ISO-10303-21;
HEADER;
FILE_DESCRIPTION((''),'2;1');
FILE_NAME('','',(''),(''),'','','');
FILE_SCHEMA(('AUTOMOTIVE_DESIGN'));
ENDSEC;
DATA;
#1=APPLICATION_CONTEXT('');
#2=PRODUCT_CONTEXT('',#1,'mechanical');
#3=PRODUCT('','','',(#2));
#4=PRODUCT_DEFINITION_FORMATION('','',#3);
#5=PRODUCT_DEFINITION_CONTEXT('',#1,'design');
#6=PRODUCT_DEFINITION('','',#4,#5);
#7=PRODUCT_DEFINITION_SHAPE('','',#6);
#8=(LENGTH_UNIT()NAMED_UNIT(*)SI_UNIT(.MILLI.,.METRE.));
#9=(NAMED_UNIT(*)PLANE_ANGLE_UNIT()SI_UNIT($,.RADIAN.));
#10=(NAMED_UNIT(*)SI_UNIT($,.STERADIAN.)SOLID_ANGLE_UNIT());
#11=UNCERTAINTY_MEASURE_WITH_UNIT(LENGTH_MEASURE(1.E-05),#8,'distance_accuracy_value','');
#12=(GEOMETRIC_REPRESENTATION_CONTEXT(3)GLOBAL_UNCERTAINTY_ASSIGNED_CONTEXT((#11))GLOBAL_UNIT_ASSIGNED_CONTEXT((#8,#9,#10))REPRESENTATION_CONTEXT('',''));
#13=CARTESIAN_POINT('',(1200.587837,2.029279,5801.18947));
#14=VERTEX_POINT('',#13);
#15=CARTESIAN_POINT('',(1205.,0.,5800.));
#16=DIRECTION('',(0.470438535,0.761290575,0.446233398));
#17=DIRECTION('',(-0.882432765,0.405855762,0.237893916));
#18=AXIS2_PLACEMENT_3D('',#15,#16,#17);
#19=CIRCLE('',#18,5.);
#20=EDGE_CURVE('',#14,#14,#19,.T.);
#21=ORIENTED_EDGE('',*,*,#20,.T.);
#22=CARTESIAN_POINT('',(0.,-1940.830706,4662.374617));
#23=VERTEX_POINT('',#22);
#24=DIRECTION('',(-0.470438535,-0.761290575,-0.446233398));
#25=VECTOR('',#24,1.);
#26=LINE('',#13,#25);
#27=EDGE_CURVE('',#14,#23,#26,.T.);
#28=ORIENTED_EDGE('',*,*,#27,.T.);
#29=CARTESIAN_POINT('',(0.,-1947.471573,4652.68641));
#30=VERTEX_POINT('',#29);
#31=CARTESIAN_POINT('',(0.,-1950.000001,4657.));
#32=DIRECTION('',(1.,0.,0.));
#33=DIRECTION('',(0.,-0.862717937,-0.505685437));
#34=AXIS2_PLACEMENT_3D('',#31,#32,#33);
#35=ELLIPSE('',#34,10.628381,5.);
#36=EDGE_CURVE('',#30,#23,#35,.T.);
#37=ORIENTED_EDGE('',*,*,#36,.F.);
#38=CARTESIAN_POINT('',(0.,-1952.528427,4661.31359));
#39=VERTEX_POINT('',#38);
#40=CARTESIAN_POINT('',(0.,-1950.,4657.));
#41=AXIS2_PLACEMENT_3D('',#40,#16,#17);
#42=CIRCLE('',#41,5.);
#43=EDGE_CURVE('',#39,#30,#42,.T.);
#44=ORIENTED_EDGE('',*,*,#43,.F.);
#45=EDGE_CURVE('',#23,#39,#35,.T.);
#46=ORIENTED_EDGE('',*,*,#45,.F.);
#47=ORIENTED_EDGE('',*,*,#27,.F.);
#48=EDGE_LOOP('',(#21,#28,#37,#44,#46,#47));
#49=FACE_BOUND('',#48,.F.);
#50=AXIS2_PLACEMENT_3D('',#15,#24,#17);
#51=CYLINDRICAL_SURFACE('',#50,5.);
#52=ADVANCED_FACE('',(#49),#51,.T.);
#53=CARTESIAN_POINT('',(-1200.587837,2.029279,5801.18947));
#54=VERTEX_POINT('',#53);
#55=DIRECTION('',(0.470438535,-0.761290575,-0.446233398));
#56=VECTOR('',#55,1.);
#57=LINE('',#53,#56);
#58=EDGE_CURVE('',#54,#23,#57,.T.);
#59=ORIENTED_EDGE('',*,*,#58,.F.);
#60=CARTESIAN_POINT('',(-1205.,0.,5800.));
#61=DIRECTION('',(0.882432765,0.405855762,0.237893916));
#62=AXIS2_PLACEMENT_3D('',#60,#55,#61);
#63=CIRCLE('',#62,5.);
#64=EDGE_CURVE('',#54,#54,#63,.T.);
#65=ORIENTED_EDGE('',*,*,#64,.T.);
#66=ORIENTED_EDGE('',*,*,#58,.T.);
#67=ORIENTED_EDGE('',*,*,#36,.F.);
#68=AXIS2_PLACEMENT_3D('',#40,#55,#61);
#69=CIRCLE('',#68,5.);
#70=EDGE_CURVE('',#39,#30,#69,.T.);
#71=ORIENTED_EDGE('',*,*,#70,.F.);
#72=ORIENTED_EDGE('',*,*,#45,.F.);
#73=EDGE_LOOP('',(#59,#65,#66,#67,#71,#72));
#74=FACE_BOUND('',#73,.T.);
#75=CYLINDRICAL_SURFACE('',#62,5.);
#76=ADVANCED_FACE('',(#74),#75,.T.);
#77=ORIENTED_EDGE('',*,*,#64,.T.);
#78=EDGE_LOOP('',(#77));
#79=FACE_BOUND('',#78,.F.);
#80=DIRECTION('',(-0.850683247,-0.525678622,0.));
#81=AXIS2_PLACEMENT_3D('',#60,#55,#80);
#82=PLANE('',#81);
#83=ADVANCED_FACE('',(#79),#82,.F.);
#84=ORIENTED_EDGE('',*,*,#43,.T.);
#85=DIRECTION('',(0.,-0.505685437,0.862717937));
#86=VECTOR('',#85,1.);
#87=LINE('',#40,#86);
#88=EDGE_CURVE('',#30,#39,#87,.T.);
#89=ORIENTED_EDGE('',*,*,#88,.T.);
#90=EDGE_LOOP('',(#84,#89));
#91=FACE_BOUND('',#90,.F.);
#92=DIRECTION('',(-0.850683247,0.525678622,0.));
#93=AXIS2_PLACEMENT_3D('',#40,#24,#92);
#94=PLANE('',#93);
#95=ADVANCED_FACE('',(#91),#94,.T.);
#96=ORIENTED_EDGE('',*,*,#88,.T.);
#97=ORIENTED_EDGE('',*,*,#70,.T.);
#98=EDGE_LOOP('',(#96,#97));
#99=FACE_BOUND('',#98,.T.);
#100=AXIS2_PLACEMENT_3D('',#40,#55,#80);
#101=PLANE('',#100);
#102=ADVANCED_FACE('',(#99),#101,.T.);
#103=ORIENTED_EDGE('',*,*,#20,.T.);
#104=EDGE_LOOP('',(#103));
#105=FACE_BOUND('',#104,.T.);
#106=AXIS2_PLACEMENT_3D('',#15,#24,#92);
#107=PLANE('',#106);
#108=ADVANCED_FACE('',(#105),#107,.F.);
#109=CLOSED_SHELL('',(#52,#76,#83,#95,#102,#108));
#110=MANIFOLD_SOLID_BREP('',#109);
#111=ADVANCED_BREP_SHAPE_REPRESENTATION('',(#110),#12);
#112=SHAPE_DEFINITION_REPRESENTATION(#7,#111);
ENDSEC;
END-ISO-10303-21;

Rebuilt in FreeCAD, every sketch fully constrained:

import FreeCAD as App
import Part
import Sketcher

doc = App.newDocument("Part")
body = doc.addObject("PartDesign::Body", "Body")

sketch1 = body.newObject("Sketcher::SketchObject", "Sketch")
sketch1.Placement = App.Placement(App.Vector(-1484.248699, 2401.896235, 1407.880716), App.Rotation(App.Vector(0.882432765, 0.405855762, 0.237893916), App.Vector(0, -0.505685437, 0.862717937), App.Vector(0.470438535, -0.761290575, -0.446233398), "ZXY"))
sketch1.addGeometry(Part.Circle(App.Vector(316, 5004, 0), App.Vector(0, 0, 1), 5), False)
sketch1.addConstraint([
    Sketcher.Constraint("Diameter", 0, 10.0),
    Sketcher.Constraint("DistanceX", -1, 1, 0, 3, 316.45323),
    Sketcher.Constraint("DistanceY", -1, 1, 0, 3, 5003.764034),
])

sketch2 = body.newObject("Sketcher::SketchObject", "Sketch001")
sketch2.Placement = App.Placement(App.Vector(-872.012694, -538.859126, 0), App.Rotation(App.Vector(0.525678622, -0.850683247, 0), App.Vector(0, 0, 1), App.Vector(-0.850683247, -0.525678622, 0), "ZXY"))
sketch2.addGeometry(Part.LineSegment(App.Vector(-633, 5800, 0), App.Vector(1659, 4657, 0)), False)
sketch2.addConstraint([
    Sketcher.Constraint("DistanceY", 0, 2, 0, 1, 1143.000001),
    Sketcher.Constraint("Distance", 0, 2561.439831),
    Sketcher.Constraint("DistanceX", 0, 1, -1, 1, 633.44274),
    Sketcher.Constraint("DistanceY", -1, 1, 0, 1, 5800.000004),
])
doc.recompute()

additivepipe = body.newObject("PartDesign::AdditivePipe", "AdditivePipe")
additivepipe.Profile = sketch1
additivepipe.Spine = (sketch2, ["Edge1"])
body2 = doc.addObject("PartDesign::Body", "Body001")
doc.recompute()

body2.BaseFeature = body
doc.recompute()

mirroring = doc.addObject("Part::Mirroring", "Mirroring")
mirroring.Source = body
mirroring.Base = App.Vector(0, 0, 0)
mirroring.Normal = App.Vector(1, 0, 0)
body3 = doc.addObject("PartDesign::Body", "Body002")
body3.BaseFeature = mirroring
boolean = body2.newObject("PartDesign::Boolean", "Boolean")
boolean.Type = "Fuse"
boolean.addObjects([body3])
doc.recompute()
mirroring.Visibility = False

doc.recompute()
